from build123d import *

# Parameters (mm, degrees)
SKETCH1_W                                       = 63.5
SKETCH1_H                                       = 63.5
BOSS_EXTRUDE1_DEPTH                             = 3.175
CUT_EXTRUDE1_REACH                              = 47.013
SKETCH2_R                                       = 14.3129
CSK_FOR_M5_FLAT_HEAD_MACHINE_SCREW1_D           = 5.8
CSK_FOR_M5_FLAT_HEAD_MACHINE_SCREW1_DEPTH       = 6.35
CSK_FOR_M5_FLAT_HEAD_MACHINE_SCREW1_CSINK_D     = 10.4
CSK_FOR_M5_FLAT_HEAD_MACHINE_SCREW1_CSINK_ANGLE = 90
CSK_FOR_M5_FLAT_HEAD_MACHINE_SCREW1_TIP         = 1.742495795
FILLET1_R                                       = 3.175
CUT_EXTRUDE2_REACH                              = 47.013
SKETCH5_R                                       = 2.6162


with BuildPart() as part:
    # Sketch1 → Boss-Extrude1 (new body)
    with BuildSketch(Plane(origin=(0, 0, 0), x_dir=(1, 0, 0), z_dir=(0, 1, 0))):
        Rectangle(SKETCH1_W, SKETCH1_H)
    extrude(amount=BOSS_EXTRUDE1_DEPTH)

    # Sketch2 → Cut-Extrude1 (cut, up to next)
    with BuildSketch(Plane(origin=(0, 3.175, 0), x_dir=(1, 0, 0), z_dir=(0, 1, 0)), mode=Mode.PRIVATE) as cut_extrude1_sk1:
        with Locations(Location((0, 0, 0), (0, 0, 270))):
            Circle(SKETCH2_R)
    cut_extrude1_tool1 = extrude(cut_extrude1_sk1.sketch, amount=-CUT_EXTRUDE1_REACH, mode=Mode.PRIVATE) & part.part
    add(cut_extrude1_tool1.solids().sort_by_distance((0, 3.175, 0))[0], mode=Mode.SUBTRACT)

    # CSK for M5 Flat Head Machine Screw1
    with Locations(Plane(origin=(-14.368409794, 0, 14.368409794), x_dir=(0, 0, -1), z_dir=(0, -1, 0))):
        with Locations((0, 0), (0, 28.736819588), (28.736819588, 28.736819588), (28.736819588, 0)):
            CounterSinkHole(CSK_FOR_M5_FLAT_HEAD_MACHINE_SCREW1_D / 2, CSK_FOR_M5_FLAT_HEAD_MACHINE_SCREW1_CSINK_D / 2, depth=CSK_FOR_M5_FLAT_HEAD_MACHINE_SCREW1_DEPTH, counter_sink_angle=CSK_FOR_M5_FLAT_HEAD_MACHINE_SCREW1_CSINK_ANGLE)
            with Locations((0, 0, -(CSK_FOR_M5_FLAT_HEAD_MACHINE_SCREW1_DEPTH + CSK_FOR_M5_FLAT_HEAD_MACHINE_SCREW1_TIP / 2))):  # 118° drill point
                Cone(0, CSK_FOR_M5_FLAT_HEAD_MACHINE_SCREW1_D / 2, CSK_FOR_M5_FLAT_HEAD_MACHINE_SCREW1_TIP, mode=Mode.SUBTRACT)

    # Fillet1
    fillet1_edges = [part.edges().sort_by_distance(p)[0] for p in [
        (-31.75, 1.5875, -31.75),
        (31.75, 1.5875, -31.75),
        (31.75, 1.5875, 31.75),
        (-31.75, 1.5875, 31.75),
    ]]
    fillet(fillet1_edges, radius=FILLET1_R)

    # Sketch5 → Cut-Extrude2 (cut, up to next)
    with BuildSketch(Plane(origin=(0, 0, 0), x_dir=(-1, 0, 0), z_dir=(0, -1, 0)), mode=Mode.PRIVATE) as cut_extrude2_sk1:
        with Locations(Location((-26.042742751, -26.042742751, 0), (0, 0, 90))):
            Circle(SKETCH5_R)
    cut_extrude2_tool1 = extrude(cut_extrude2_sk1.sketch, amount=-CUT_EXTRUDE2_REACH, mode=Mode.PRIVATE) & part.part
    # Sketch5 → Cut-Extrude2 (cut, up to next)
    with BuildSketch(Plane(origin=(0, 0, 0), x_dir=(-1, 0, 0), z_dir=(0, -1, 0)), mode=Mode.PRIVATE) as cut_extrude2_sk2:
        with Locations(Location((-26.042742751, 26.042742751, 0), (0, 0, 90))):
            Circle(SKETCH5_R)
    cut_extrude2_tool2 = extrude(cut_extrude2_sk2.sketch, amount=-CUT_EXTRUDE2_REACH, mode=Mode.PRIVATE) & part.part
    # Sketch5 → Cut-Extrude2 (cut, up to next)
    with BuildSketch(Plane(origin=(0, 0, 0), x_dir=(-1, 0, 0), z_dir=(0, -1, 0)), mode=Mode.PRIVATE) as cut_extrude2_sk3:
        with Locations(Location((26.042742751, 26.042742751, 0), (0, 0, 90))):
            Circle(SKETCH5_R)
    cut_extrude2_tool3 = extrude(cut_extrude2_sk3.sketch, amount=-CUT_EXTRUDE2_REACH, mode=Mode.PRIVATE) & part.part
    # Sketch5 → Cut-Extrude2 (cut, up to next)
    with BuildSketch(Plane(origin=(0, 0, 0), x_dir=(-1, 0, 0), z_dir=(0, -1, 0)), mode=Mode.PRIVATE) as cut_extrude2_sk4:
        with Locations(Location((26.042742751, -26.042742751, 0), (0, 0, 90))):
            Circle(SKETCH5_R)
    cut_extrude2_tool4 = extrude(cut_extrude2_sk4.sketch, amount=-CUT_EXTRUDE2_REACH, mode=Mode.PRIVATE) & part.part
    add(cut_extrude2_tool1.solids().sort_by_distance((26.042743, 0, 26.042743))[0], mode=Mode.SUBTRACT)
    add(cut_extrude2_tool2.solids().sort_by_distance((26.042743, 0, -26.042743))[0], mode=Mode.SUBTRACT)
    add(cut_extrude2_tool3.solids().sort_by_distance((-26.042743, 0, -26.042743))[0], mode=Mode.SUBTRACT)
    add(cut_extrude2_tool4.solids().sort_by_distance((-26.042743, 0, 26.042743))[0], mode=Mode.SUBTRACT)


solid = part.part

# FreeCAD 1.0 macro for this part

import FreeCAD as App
import Part
import Sketcher

V = App.Vector
Q = App.Units.Quantity


def edges_at(feature, points):
    """Names of the edges that pass closest to the given points."""
    edges = feature.Shape.Edges
    near = lambda p: min(range(len(edges)), key=lambda i: edges[i].distToShape(Part.Vertex(*p))[0])
    return sorted({f"Edge{near(p) + 1}" for p in points})


def add_polygon(sketch, points):
    """Adds a closed chain of lines whose ends are joined by coincident constraints."""
    first, n = sketch.GeometryCount, len(points)
    for a, b in zip(points, points[1:] + points[:1]):
        sketch.addGeometry(Part.LineSegment(App.Vector(*a, 0), App.Vector(*b, 0)), False)
    for i in range(n):
        sketch.addConstraint(Sketcher.Constraint("Coincident", first + i, 2, first + (i + 1) % n, 1))

doc = App.newDocument("Part")
body = doc.addObject("PartDesign::Body", "Body")

# Sketch on XZ plane
sketch1 = doc.addObject("Sketcher::SketchObject", "Sketch")
body.addObject(sketch1)
sketch1.AttachmentSupport = (doc.XZ_Plane, [""])
sketch1.MapMode = "FlatFace"
add_polygon(sketch1, [(-32, -32), (-32, 32), (32, 32), (32, -32)])  # lines 0-3
sketch1.addConstraint(Sketcher.Constraint("Vertical", 0))
sketch1.addConstraint(Sketcher.Constraint("Horizontal", 1))
sketch1.addConstraint(Sketcher.Constraint("Vertical", 2))
sketch1.addConstraint(Sketcher.Constraint("Horizontal", 3))
sketch1.addConstraint(Sketcher.Constraint("Symmetric", 0, 2, 2, 2, -1, 1))
sketch1.addConstraint(Sketcher.Constraint("Equal", 3, 0))
sketch1.addConstraint(Sketcher.Constraint("DistanceX", 1, 1, 1, 2, Q("2.5 in")))
pad1 = doc.addObject("PartDesign::Pad", "Pad")
body.addObject(pad1)
pad1.Profile = sketch1
pad1.Length = Q("0.125 in")
pad1.Reversed = True

# Sketch on XZ plane
sketch2 = doc.addObject("Sketcher::SketchObject", "Sketch001")
body.addObject(sketch2)
sketch2.AttachmentSupport = (doc.XZ_Plane, [""])
sketch2.MapMode = "FlatFace"
sketch2.AttachmentOffset = App.Placement(V(0, 0, -0.125 * 25.4), App.Rotation())
sketch2.addGeometry(Part.Circle(V(0, 0, 0), V(0, 0, 1), 14), False)
sketch2.addConstraint(Sketcher.Constraint("Coincident", 0, 3, -1, 1))
sketch2.addConstraint(Sketcher.Constraint("Diameter", 0, Q("1.127 in")))
pocket1 = doc.addObject("PartDesign::Pocket", "Pocket")
body.addObject(pocket1)
pocket1.Profile = sketch2
pocket1.Type = "UpToFirst"
pocket1.Reversed = True

# Sketch on XZ plane
sketch3 = doc.addObject("Sketcher::SketchObject", "Sketch002")
body.addObject(sketch3)
sketch3.AttachmentSupport = (doc.XZ_Plane, [""])
sketch3.MapMode = "FlatFace"
sketch3.addGeometry(Part.Circle(V(-14.4, 14.4, 0), V(0, 0, 1), 2.9), False)
sketch3.addGeometry(Part.Circle(V(14.4, 14.4, 0), V(0, 0, 1), 2.9), False)
sketch3.addGeometry(Part.Circle(V(14.4, -14.4, 0), V(0, 0, 1), 2.9), False)
sketch3.addGeometry(Part.Circle(V(-14.4, -14.4, 0), V(0, 0, 1), 2.9), False)
sketch3.addConstraint(Sketcher.Constraint("Equal", 0, 1))
sketch3.addConstraint(Sketcher.Constraint("Equal", 1, 2))
sketch3.addConstraint(Sketcher.Constraint("Equal", 2, 3))
sketch3.addConstraint(Sketcher.Constraint("Symmetric", 0, 3, 2, 3, -1, 1))
sketch3.addConstraint(Sketcher.Constraint("Symmetric", 1, 3, 3, 3, -1, 1))
sketch3.addConstraint(Sketcher.Constraint("Symmetric", 0, 3, 1, 3, -2))
sketch3.addConstraint(Sketcher.Constraint("Diameter", 0, 5.8))
sketch3.addConstraint(Sketcher.Constraint("DistanceX", 0, 3, -1, 1, 14.36841))
sketch3.addConstraint(Sketcher.Constraint("DistanceY", -1, 1, 0, 3, 14.36841))
doc.recompute()
hole = doc.addObject("PartDesign::Hole", "Hole")
body.addObject(hole)
hole.Profile = sketch3
hole.ThreadType = "None"
hole.Diameter = 5.8
hole.DepthType = "Dimension"
hole.Depth = Q("0.25 in")
hole.DrillPoint = "Angled"
hole.DrillPointAngle = 118
hole.HoleCutType = "Countersink"
hole.HoleCutDiameter = 10.4
hole.HoleCutCountersinkAngle = 90
doc.recompute()

fillet = doc.addObject("PartDesign::Fillet", "Fillet")
body.addObject(fillet)
fillet.Base = (hole, edges_at(hole, [
    (-31.75, 1.587, -31.75),
    (31.75, 1.587, -31.75),
    (31.75, 1.587, 31.75),
    (-31.75, 1.587, 31.75),
]))
fillet.Radius = Q("0.125 in")

# Sketch on XZ plane
sketch4 = doc.addObject("Sketcher::SketchObject", "Sketch003")
body.addObject(sketch4)
sketch4.AttachmentSupport = (doc.XZ_Plane, [""])
sketch4.MapMode = "FlatFace"
sketch4.addGeometry(Part.Circle(V(26, 26, 0), V(0, 0, 1), 2.6), False)
sketch4.addConstraint(Sketcher.Constraint("Diameter", 0, Q("0.206 in")))
sketch4.addConstraint(Sketcher.Constraint("DistanceX", -1, 1, 0, 3, 26.042743))
sketch4.addConstraint(Sketcher.Constraint("DistanceY", -1, 1, 0, 3, 26.042743))
pocket2 = doc.addObject("PartDesign::Pocket", "Pocket001")
body.addObject(pocket2)
pocket2.Profile = sketch4
pocket2.Type = "UpToFirst"

# Sketch on XZ plane
sketch5 = doc.addObject("Sketcher::SketchObject", "Sketch004")
body.addObject(sketch5)
sketch5.AttachmentSupport = (doc.XZ_Plane, [""])
sketch5.MapMode = "FlatFace"
sketch5.addGeometry(Part.Circle(V(26, -26, 0), V(0, 0, 1), 2.6), False)
sketch5.addConstraint(Sketcher.Constraint("Diameter", 0, Q("0.206 in")))
sketch5.addConstraint(Sketcher.Constraint("DistanceX", -1, 1, 0, 3, 26.042743))
sketch5.addConstraint(Sketcher.Constraint("DistanceY", 0, 3, -1, 1, 26.042743))
pocket3 = doc.addObject("PartDesign::Pocket", "Pocket002")
body.addObject(pocket3)
pocket3.Profile = sketch5
pocket3.Type = "UpToFirst"

# Sketch on XZ plane
sketch6 = doc.addObject("Sketcher::SketchObject", "Sketch005")
body.addObject(sketch6)
sketch6.AttachmentSupport = (doc.XZ_Plane, [""])
sketch6.MapMode = "FlatFace"
sketch6.addGeometry(Part.Circle(V(-26, -26, 0), V(0, 0, 1), 2.6), False)
sketch6.addConstraint(Sketcher.Constraint("Diameter", 0, Q("0.206 in")))
sketch6.addConstraint(Sketcher.Constraint("DistanceX", 0, 3, -1, 1, 26.042743))
sketch6.addConstraint(Sketcher.Constraint("DistanceY", 0, 3, -1, 1, 26.042743))
pocket4 = doc.addObject("PartDesign::Pocket", "Pocket003")
body.addObject(pocket4)
pocket4.Profile = sketch6
pocket4.Type = "UpToFirst"

# Sketch on XZ plane
sketch7 = doc.addObject("Sketcher::SketchObject", "Sketch006")
body.addObject(sketch7)
sketch7.AttachmentSupport = (doc.XZ_Plane, [""])
sketch7.MapMode = "FlatFace"
sketch7.addGeometry(Part.Circle(V(-26, 26, 0), V(0, 0, 1), 2.6), False)
sketch7.addConstraint(Sketcher.Constraint("Diameter", 0, Q("0.206 in")))
sketch7.addConstraint(Sketcher.Constraint("DistanceX", 0, 3, -1, 1, 26.042743))
sketch7.addConstraint(Sketcher.Constraint("DistanceY", -1, 1, 0, 3, 26.042743))
pocket5 = doc.addObject("PartDesign::Pocket", "Pocket004")
body.addObject(pocket5)
pocket5.Profile = sketch7
pocket5.Type = "UpToFirst"

doc.recompute()
